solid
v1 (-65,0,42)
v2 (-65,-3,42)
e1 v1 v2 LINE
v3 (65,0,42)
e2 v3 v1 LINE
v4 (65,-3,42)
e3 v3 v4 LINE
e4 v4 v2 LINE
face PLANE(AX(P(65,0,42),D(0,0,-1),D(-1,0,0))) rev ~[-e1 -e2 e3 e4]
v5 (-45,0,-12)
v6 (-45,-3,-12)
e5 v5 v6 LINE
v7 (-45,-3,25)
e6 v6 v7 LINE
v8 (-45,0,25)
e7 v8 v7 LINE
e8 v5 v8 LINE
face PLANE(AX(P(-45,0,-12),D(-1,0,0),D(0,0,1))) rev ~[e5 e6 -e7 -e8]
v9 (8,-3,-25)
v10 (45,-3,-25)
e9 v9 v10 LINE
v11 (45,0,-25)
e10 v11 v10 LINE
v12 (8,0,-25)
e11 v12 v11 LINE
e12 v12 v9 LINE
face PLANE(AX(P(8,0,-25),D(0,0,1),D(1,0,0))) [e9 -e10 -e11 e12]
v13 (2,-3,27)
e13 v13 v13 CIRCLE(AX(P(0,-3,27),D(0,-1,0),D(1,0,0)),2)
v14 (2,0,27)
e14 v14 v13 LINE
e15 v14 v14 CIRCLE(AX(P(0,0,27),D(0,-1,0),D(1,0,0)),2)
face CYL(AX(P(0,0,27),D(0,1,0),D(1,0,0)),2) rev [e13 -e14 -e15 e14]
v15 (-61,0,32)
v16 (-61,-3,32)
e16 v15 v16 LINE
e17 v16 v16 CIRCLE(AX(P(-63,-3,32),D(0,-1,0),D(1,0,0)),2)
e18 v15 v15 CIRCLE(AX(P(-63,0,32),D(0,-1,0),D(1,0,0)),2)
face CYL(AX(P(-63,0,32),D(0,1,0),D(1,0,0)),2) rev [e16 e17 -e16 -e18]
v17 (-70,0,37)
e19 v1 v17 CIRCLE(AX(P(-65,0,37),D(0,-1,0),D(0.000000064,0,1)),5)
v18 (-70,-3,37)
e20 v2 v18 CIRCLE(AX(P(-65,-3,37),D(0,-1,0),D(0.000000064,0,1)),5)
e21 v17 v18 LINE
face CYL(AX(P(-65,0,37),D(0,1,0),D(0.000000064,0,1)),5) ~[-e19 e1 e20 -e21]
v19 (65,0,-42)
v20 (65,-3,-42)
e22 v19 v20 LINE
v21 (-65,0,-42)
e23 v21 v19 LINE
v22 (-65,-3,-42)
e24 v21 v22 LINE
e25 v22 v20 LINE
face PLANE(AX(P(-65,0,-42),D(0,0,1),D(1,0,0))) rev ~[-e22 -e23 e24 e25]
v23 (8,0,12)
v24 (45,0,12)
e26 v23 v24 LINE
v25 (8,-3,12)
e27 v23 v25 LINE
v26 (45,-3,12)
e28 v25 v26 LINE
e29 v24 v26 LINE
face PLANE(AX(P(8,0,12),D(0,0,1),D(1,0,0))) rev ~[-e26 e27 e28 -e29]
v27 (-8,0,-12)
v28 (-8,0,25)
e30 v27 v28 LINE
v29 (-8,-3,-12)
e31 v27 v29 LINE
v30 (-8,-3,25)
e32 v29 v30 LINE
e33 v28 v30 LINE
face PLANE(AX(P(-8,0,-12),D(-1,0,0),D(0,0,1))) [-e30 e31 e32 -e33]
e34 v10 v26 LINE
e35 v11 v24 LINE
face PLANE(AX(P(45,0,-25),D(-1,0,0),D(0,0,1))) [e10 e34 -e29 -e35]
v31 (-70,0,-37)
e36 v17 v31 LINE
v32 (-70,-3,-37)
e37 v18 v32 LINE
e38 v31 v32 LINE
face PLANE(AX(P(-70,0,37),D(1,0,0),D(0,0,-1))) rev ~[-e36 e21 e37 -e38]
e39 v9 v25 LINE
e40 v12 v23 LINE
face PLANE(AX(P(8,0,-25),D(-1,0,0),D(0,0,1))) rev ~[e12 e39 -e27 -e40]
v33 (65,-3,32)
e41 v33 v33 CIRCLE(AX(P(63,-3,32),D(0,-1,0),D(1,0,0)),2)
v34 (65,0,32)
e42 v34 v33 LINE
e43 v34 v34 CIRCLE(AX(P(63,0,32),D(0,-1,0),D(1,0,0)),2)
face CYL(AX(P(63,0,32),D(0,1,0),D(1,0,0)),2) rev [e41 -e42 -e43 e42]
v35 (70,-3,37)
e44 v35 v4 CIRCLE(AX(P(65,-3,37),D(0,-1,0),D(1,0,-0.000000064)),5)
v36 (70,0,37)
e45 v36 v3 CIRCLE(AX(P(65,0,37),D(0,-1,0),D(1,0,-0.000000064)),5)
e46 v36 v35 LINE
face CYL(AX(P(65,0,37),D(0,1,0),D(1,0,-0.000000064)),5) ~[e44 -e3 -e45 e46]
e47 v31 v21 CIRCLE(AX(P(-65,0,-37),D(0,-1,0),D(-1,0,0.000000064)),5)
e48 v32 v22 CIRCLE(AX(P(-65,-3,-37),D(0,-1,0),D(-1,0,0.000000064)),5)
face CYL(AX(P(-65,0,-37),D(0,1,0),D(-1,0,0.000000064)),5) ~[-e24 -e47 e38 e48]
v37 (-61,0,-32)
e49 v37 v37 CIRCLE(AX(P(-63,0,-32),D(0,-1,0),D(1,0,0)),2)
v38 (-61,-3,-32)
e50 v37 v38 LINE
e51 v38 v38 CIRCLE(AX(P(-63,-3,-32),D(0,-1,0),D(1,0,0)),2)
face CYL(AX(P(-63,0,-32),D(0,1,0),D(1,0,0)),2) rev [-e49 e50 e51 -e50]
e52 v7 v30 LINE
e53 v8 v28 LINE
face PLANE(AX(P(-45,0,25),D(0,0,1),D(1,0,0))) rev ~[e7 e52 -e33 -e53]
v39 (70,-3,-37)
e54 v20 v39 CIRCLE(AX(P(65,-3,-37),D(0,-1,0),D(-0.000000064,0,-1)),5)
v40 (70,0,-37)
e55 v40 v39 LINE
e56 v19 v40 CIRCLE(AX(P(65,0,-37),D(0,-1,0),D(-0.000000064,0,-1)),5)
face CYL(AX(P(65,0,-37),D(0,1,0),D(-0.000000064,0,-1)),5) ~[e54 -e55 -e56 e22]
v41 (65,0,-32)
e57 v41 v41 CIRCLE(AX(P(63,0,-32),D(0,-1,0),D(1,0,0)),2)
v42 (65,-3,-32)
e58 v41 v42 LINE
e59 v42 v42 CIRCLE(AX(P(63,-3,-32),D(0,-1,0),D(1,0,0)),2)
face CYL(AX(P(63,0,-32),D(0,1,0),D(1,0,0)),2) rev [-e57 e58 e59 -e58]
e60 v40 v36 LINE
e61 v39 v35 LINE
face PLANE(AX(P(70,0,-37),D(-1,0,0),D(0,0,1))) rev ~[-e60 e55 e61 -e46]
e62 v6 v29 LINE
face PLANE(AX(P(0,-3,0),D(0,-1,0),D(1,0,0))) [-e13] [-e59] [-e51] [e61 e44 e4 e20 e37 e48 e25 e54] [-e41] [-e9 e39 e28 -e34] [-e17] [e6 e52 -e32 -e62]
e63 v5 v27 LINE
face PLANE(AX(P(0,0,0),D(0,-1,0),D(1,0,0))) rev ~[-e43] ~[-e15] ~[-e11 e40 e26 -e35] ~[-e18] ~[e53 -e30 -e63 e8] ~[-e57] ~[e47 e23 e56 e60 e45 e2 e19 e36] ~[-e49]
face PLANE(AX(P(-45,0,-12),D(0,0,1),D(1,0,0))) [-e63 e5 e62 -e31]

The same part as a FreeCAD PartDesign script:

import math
import FreeCAD as App
import Part
import Sketcher
from FreeCAD import Vector
Q = App.Units.Quantity


def add_polygon(sketch, points):
    """Adds a closed chain of lines whose ends are joined by coincident constraints."""
    first, n = sketch.GeometryCount, len(points)
    for a, b in zip(points, points[1:] + points[:1]):
        sketch.addGeometry(Part.LineSegment(App.Vector(*a, 0), App.Vector(*b, 0)), False)
    for i in range(n):
        sketch.addConstraint(Sketcher.Constraint("Coincident", first + i, 2, first + (i + 1) % n, 1))

doc = App.newDocument("Part")
params = doc.addObject("Spreadsheet::Sheet", "Params")
for row, (alias, value) in enumerate([
    ("sketch1_diameter", "4 mm"),
    ("sketch1_radius", "5 mm"),
    ("sketch1_width", "130 mm"),
    ("sketch1_width2", "37 mm"),
    ("sketch1_height", "74 mm"),
    ("pad1_length", "3 mm"),
], start=1):
    params.set(f"A{row}", alias)
    params.set(f"B{row}", "=" + value)
    params.setAlias(f"B{row}", alias)

body = doc.addObject("PartDesign::Body", "Body")

sketch1 = body.newObject("Sketcher::SketchObject", "Sketch")
sketch1.AttachmentSupport = (doc.getObject("XZ_Plane"), [""])
sketch1.MapMode = "FlatFace"
sketch1.addGeometry(Part.LineSegment(Vector(65, 42, 0), Vector(-65, 42, 0)), False)
sketch1.addGeometry(Part.ArcOfCircle(Part.Circle(Vector(-65, 37, 0), Vector(0, 0, 1), 5), math.radians(89.999996), math.radians(180.000004)), False)
sketch1.addGeometry(Part.LineSegment(Vector(-70, 37, 0), Vector(-70, -37, 0)), False)
sketch1.addGeometry(Part.ArcOfCircle(Part.Circle(Vector(-65, -37, 0), Vector(0, 0, 1), 5), math.radians(179.999996), math.radians(270.000004)), False)
sketch1.addGeometry(Part.LineSegment(Vector(-65, -42, 0), Vector(65, -42, 0)), False)
sketch1.addGeometry(Part.ArcOfCircle(Part.Circle(Vector(65, -37, 0), Vector(0, 0, 1), 5), math.radians(-90.000004), math.radians(0.000004)), False)
sketch1.addGeometry(Part.LineSegment(Vector(70, -37, 0), Vector(70, 37, 0)), False)
sketch1.addGeometry(Part.ArcOfCircle(Part.Circle(Vector(65, 37, 0), Vector(0, 0, 1), 5), math.radians(-0.000004), math.radians(90.000004)), False)
sketch1.addGeometry(Part.Circle(Vector(-63, -32, 0), Vector(0, 0, 1), 2), False)
sketch1.addGeometry(Part.Circle(Vector(63, -32, 0), Vector(0, 0, 1), 2), False)
add_polygon(sketch1, [(45, -25), (8, -25), (8, 12), (45, 12)])
add_polygon(sketch1, [(-8, -12), (-45, -12), (-45, 25), (-8, 25)])
sketch1.addGeometry(Part.Circle(Vector(-63, 32, 0), Vector(0, 0, 1), 2), False)
sketch1.addGeometry(Part.Circle(Vector(0, 27, 0), Vector(0, 0, 1), 2), False)
sketch1.addGeometry(Part.Circle(Vector(63, 32, 0), Vector(0, 0, 1), 2), False)
sketch1.addConstraint([
    Sketcher.Constraint("Tangent", 0, 2, 1, 1),
    Sketcher.Constraint("Tangent", 1, 2, 2, 1),
    Sketcher.Constraint("Tangent", 2, 2, 3, 1),
    Sketcher.Constraint("Tangent", 3, 2, 4, 1),
    Sketcher.Constraint("Tangent", 4, 2, 5, 1),
    Sketcher.Constraint("Tangent", 5, 2, 6, 1),
    Sketcher.Constraint("Tangent", 6, 2, 7, 1),
    Sketcher.Constraint("Tangent", 7, 2, 0, 1),
    Sketcher.Constraint("Horizontal", 0),
    Sketcher.Constraint("Vertical", 2),
    Sketcher.Constraint("Horizontal", 4),
    Sketcher.Constraint("Vertical", 6),
    Sketcher.Constraint("Horizontal", 10),
    Sketcher.Constraint("Vertical", 11),
    Sketcher.Constraint("Horizontal", 12),
    Sketcher.Constraint("Vertical", 13),
    Sketcher.Constraint("Horizontal", 14),
    Sketcher.Constraint("Vertical", 15),
    Sketcher.Constraint("Horizontal", 16),
    Sketcher.Constraint("Vertical", 17),
    Sketcher.Constraint("Equal", 1, 3),
    Sketcher.Constraint("Equal", 3, 5),
    Sketcher.Constraint("Equal", 5, 7),
    Sketcher.Constraint("Equal", 8, 9),
    Sketcher.Constraint("Equal", 9, 18),
    Sketcher.Constraint("Equal", 18, 19),
    Sketcher.Constraint("Equal", 19, 20),
    Sketcher.Constraint("Symmetric", 1, 3, 5, 3, -1, 1),
    Sketcher.Constraint("Symmetric", 9, 3, 18, 3, -1, 1),
    Sketcher.Constraint("Symmetric", 8, 3, 20, 3, -1, 1),
    Sketcher.Constraint("Symmetric", 12, 2, 14, 2, -1, 1),
    Sketcher.Constraint("Symmetric", 10, 2, 16, 2, -1, 1),
    Sketcher.Constraint("Symmetric", 8, 3, 9, 3, -2),
    Sketcher.Constraint("PointOnObject", 19, 3, -2),
    Sketcher.Constraint("Equal", 16, 11),
    Sketcher.Constraint("Diameter", 8, Q("4 mm")),
    Sketcher.Constraint("Radius", 1, Q("5 mm")),
    Sketcher.Constraint("DistanceX", 0, 2, 0, 1, Q("130 mm")),
    Sketcher.Constraint("DistanceX", 10, 2, 10, 1, Q("37 mm")),
    Sketcher.Constraint("DistanceY", 2, 2, 2, 1, Q("74 mm")),
    Sketcher.Constraint("DistanceX", 8, 3, -1, 1, Q("63 mm")),
    Sketcher.Constraint("DistanceY", 8, 3, -1, 1, Q("32 mm")),
    Sketcher.Constraint("DistanceY", -1, 1, 19, 3, Q("27 mm")),
    Sketcher.Constraint("DistanceX", -1, 1, 10, 2, Q("8 mm")),
    Sketcher.Constraint("DistanceY", 10, 2, -1, 1, Q("25 mm")),
])
sketch1.setExpression("Constraints[43]", "Params.sketch1_diameter")
sketch1.setExpression("Constraints[44]", "Params.sketch1_radius")
sketch1.setExpression("Constraints[45]", "Params.sketch1_width")
sketch1.setExpression("Constraints[46]", "Params.sketch1_width2")
sketch1.setExpression("Constraints[47]", "Params.sketch1_height")
pad1 = body.newObject("PartDesign::Pad", "Pad")
pad1.Profile = sketch1
pad1.setExpression("Length", "Params.pad1_length")

doc.recompute()
